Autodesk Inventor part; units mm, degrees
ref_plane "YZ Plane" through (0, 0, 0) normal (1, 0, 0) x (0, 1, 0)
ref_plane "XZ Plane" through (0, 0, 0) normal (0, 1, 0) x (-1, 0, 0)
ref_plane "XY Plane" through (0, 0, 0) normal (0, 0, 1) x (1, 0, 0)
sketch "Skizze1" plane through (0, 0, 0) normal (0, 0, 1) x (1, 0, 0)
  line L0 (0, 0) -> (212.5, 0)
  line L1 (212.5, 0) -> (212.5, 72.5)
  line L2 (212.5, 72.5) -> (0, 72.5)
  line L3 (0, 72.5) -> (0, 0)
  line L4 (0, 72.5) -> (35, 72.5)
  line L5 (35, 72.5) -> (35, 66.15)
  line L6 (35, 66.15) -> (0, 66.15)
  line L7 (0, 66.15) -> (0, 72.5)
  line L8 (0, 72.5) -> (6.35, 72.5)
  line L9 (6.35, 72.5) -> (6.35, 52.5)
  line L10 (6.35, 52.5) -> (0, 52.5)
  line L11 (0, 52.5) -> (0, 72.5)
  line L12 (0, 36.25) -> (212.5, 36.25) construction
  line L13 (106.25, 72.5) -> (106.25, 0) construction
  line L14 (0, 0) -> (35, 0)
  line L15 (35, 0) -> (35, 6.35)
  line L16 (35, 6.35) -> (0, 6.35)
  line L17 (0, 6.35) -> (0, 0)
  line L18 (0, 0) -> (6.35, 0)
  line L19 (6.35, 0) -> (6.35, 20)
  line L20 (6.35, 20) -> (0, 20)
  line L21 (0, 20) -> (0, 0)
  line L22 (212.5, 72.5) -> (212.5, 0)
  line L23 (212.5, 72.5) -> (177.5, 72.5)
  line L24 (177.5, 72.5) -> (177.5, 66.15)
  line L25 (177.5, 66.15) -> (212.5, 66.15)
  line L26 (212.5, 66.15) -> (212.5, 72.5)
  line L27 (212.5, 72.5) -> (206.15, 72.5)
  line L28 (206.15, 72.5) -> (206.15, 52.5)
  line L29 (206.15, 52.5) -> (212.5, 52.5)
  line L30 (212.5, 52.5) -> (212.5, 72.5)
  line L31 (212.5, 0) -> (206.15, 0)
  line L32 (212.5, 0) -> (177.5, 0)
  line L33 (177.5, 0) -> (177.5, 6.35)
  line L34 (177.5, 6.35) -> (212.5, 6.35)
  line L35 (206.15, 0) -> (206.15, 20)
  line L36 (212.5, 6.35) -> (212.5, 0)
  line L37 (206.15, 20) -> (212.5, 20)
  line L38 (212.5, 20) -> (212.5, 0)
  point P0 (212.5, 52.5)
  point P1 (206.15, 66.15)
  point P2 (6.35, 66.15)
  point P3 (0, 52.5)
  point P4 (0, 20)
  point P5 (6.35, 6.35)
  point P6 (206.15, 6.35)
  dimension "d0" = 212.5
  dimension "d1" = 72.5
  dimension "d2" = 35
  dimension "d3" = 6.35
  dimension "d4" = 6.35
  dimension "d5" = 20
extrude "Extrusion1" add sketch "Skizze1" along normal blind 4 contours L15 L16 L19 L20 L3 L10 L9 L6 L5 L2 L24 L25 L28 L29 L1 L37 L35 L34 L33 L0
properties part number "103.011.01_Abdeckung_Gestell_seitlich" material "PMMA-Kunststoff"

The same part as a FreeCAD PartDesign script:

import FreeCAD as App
import Part
import Sketcher

V = App.Vector
Q = App.Units.Quantity


def add_polygon(sketch, points):
    """Adds a closed chain of lines whose ends are joined by coincident constraints."""
    first, n = sketch.GeometryCount, len(points)
    for a, b in zip(points, points[1:] + points[:1]):
        sketch.addGeometry(Part.LineSegment(App.Vector(*a, 0), App.Vector(*b, 0)), False)
    for i in range(n):
        sketch.addConstraint(Sketcher.Constraint("Coincident", first + i, 2, first + (i + 1) % n, 1))

doc = App.newDocument("Part")
body = doc.addObject("PartDesign::Body", "Body")

# Sketch on XY plane
sketch1 = body.newObject("Sketcher::SketchObject", "Sketch")
sketch1.AttachmentSupport = (doc.getObject("XY_Plane"), [""])
sketch1.MapMode = "FlatFace"
add_polygon(sketch1, [(35, 6.35), (35, 0), (177.5, 0), (177.5, 6.35), (206.15, 6.35), (206.15, 20), (212.5, 20), (212.5, 52.5), (206.15, 52.5), (206.15, 66.15), (177.5, 66.15), (177.5, 72.5), (35, 72.5), (35, 66.15), (6.35, 66.15), (6.35, 52.5), (0, 52.5), (0, 20), (6.35, 20), (6.35, 6.35)])  # lines 0-19
sketch1.addConstraint(Sketcher.Constraint("Vertical", 0))
sketch1.addConstraint(Sketcher.Constraint("Horizontal", 1))
sketch1.addConstraint(Sketcher.Constraint("Vertical", 2))
sketch1.addConstraint(Sketcher.Constraint("Horizontal", 3))
sketch1.addConstraint(Sketcher.Constraint("Vertical", 4))
sketch1.addConstraint(Sketcher.Constraint("Horizontal", 5))
sketch1.addConstraint(Sketcher.Constraint("Vertical", 6))
sketch1.addConstraint(Sketcher.Constraint("Horizontal", 7))
sketch1.addConstraint(Sketcher.Constraint("Vertical", 8))
sketch1.addConstraint(Sketcher.Constraint("Horizontal", 9))
sketch1.addConstraint(Sketcher.Constraint("Vertical", 10))
sketch1.addConstraint(Sketcher.Constraint("Horizontal", 11))
sketch1.addConstraint(Sketcher.Constraint("Vertical", 12))
sketch1.addConstraint(Sketcher.Constraint("Horizontal", 13))
sketch1.addConstraint(Sketcher.Constraint("Vertical", 14))
sketch1.addConstraint(Sketcher.Constraint("Horizontal", 15))
sketch1.addConstraint(Sketcher.Constraint("Vertical", 16))
sketch1.addConstraint(Sketcher.Constraint("Horizontal", 17))
sketch1.addConstraint(Sketcher.Constraint("Vertical", 18))
sketch1.addConstraint(Sketcher.Constraint("Horizontal", 19))
sketch1.addConstraint(Sketcher.Constraint("PointOnObject", 0, 2, -1))
sketch1.addConstraint(Sketcher.Constraint("PointOnObject", 15, 2, -2))
sketch1.addConstraint(Sketcher.Constraint("Horizontal", 9, 2, 12, 2))
sketch1.addConstraint(Sketcher.Constraint("Horizontal", 7, 2, 14, 2))
sketch1.addConstraint(Sketcher.Constraint("Horizontal", 5, 2, 16, 2))
sketch1.addConstraint(Sketcher.Constraint("Horizontal", 3, 2, 18, 2))
sketch1.addConstraint(Sketcher.Constraint("Vertical", 4, 2, 7, 2))
sketch1.addConstraint(Sketcher.Constraint("Vertical", 2, 2, 9, 2))
sketch1.addConstraint(Sketcher.Constraint("Vertical", 0, 2, 11, 2))
sketch1.addConstraint(Sketcher.Constraint("Vertical", 14, 2, 17, 2))
sketch1.addConstraint(Sketcher.Constraint("Equal", 9, 13))
sketch1.addConstraint(Sketcher.Constraint("Equal", 7, 15))
sketch1.addConstraint(Sketcher.Constraint("Equal", 17, 0))
sketch1.addConstraint(Sketcher.Constraint("Equal", 4, 8))
sketch1.addConstraint(Sketcher.Constraint("Equal", 2, 10))
sketch1.addConstraint(Sketcher.Constraint("DistanceX", -1, 1, 0, 2, Q("35 mm")))
sketch1.addConstraint(Sketcher.Constraint("DistanceY", -1, 1, 4, 2, Q("20 mm")))
sketch1.addConstraint(Sketcher.Constraint("DistanceX", 5, 1, 5, 2, Q("6.35 mm")))
sketch1.addConstraint(Sketcher.Constraint("DistanceX", -1, 1, 5, 2, Q("212.5 mm")))
sketch1.addConstraint(Sketcher.Constraint("DistanceY", -1, 1, 10, 2, Q("72.5 mm")))
pad1 = body.newObject("PartDesign::Pad", "Pad")
pad1.Profile = sketch1
pad1.Length = 4

doc.recompute()
